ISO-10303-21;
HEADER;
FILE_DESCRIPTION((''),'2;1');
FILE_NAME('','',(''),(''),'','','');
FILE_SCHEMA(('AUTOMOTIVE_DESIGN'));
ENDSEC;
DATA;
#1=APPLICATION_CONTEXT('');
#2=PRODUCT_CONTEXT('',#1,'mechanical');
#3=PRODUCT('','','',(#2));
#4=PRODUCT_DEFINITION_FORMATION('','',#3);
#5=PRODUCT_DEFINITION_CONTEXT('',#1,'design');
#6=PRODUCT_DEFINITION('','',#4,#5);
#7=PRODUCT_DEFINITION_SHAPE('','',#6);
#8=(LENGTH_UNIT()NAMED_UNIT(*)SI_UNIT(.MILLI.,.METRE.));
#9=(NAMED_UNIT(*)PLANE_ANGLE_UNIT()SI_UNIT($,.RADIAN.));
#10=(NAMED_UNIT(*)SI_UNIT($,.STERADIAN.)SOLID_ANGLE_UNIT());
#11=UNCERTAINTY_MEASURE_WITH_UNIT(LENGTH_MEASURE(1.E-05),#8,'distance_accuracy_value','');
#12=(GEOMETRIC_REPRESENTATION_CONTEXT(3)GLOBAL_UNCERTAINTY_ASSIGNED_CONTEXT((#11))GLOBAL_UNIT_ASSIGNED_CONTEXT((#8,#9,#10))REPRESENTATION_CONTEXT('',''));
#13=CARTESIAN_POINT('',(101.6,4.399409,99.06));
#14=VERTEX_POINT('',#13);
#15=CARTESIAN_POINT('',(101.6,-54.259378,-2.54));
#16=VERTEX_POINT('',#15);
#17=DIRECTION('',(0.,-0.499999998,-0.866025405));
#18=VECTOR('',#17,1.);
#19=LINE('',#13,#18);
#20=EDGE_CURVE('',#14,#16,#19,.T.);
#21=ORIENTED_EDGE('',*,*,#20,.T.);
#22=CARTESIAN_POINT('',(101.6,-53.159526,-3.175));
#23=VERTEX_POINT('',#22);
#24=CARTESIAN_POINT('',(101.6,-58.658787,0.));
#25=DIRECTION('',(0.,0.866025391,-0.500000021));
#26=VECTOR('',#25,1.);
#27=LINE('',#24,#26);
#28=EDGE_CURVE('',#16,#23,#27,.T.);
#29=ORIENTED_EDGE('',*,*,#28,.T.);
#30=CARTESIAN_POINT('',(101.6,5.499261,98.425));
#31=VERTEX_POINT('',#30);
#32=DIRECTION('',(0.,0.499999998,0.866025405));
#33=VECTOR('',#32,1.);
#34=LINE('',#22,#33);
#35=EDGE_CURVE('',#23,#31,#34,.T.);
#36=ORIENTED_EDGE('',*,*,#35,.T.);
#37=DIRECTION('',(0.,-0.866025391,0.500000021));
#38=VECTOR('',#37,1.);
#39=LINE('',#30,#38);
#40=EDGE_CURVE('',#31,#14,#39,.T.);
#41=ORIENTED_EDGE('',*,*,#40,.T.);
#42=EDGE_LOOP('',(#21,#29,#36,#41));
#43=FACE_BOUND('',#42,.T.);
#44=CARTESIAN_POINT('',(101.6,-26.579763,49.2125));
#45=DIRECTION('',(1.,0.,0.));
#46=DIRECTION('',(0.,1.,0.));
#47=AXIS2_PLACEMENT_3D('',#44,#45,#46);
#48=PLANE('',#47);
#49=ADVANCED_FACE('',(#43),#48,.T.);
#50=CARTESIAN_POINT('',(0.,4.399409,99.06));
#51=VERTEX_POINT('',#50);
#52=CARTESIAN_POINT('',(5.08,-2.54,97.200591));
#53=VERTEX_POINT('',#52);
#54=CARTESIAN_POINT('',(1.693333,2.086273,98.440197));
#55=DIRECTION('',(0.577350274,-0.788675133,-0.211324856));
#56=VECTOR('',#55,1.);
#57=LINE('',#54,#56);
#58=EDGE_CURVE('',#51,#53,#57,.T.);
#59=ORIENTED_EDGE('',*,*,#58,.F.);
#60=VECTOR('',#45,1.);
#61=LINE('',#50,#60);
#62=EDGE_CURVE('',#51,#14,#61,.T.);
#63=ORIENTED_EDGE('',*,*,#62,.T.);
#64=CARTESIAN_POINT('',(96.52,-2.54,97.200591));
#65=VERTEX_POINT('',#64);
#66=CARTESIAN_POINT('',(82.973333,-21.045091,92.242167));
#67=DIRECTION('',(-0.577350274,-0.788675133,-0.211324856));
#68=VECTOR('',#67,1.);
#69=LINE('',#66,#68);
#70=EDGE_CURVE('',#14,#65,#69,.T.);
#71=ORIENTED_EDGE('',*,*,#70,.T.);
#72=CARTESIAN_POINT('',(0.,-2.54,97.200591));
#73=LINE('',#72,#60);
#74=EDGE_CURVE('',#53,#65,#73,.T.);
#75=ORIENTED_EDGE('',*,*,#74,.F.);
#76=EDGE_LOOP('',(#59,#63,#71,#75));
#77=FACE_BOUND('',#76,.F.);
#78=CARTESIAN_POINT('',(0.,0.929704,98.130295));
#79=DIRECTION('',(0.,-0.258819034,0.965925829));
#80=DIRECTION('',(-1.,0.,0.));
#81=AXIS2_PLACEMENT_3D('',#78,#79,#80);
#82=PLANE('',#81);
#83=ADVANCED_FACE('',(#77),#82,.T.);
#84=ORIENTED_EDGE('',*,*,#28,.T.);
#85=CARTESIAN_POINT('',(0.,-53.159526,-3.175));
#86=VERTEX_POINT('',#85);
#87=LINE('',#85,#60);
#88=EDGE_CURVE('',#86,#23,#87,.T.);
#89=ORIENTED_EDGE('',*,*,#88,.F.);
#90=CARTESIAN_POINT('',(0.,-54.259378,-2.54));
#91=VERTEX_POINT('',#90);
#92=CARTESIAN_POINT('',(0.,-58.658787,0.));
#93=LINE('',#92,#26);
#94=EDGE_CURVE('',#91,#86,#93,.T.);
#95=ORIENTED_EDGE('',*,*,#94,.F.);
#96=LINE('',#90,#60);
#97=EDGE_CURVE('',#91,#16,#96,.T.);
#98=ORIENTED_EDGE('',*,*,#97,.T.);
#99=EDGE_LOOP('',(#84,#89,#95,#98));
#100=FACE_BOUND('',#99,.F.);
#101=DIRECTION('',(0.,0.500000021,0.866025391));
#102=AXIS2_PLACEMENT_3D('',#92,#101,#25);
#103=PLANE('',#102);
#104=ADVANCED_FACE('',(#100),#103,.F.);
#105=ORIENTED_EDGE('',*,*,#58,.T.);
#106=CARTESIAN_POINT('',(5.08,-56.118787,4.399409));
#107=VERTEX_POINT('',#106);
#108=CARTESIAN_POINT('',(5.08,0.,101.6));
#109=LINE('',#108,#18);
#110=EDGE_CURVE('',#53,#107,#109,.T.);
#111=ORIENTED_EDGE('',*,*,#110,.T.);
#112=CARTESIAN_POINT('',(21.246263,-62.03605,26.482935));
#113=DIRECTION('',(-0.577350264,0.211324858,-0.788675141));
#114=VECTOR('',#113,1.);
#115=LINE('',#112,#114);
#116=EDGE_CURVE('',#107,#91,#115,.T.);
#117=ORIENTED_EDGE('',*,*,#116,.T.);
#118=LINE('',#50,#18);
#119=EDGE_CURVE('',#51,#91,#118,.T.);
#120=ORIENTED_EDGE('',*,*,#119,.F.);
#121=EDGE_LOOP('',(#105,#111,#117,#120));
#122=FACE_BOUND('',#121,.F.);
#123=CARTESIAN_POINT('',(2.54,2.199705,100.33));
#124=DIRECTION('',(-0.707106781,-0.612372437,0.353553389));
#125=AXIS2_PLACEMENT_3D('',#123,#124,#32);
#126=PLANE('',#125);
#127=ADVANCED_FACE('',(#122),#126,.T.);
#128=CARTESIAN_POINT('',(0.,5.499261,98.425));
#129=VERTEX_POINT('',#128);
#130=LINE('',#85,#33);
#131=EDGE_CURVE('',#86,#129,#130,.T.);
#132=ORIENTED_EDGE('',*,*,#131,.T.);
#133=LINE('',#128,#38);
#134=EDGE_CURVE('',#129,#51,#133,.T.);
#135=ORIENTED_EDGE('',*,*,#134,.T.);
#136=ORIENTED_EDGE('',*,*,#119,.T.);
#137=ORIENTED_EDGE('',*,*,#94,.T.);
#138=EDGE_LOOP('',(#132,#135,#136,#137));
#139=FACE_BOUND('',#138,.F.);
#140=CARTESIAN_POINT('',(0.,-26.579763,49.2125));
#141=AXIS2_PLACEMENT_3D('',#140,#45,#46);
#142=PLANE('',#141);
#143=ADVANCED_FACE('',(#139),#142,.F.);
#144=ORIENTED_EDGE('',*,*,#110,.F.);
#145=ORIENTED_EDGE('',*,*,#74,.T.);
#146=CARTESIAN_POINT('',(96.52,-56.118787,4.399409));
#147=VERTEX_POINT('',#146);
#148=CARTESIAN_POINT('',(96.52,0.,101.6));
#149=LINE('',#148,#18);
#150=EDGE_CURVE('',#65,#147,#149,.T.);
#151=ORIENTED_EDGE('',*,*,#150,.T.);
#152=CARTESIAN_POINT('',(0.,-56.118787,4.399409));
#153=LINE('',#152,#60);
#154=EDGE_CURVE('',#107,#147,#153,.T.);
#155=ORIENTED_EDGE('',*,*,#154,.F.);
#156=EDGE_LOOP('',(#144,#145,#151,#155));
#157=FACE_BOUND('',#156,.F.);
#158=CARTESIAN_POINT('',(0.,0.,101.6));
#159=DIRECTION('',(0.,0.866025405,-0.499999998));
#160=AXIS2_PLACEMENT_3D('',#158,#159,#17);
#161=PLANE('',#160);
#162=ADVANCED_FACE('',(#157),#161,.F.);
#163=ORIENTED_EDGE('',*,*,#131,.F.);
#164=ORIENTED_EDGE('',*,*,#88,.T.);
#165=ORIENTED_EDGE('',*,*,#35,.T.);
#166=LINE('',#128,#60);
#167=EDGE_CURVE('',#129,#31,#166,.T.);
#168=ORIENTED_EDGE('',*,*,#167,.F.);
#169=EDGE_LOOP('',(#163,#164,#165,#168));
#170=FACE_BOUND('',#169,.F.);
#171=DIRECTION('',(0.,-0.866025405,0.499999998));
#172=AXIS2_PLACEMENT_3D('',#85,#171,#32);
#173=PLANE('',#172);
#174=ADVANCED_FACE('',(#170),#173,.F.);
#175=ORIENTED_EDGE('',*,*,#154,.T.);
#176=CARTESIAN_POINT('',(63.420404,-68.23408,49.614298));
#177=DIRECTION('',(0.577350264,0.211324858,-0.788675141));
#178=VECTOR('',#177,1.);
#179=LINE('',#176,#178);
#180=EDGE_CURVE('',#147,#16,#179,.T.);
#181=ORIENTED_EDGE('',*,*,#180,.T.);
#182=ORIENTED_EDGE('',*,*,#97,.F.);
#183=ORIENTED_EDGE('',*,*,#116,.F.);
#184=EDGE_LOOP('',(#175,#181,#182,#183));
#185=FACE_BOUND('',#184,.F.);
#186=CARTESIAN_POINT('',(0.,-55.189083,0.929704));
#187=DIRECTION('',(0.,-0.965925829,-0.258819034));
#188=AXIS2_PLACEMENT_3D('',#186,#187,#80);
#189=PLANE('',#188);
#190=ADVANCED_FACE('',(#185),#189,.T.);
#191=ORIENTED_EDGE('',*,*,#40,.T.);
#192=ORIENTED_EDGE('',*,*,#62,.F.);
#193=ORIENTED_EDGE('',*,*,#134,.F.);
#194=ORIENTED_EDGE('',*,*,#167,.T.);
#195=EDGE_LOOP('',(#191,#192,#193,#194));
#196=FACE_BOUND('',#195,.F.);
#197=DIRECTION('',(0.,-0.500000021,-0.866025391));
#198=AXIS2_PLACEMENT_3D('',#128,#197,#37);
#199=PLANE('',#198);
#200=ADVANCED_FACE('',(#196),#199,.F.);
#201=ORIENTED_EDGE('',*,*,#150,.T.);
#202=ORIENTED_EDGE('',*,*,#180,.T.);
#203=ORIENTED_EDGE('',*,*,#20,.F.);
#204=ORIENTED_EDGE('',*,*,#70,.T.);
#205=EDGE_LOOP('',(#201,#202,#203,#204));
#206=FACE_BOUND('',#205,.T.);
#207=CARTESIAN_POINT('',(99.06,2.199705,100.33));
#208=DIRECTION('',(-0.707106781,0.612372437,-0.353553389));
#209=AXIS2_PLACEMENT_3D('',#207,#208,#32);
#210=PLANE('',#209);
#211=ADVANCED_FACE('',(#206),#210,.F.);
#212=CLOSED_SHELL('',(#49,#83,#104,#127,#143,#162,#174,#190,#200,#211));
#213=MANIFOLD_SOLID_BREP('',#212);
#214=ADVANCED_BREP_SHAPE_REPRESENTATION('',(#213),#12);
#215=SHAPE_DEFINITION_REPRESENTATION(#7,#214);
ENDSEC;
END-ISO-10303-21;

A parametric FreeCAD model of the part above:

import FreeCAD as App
import Part
import Sketcher

V = App.Vector
Q = App.Units.Quantity


def edges_at(feature, points):
    """Names of the edges that pass closest to the given points."""
    edges = feature.Shape.Edges
    near = lambda p: min(range(len(edges)), key=lambda i: edges[i].distToShape(Part.Vertex(*p))[0])
    return sorted({f"Edge{near(p) + 1}" for p in points})

doc = App.newDocument("Part")
body = doc.addObject("PartDesign::Body", "Body")

# Sketch on YZ plane
sketch1 = body.newObject("Sketcher::SketchObject", "Sketch")
sketch1.AttachmentSupport = (doc.getObject("YZ_Plane"), [""])
sketch1.MapMode = "FlatFace"
sketch1.addGeometry(Part.LineSegment(V(5, 98, 0), V(0, 102, 0)), False)
sketch1.addGeometry(Part.LineSegment(V(0, 102, 0), V(-59, 0, 0)), False)
sketch1.addGeometry(Part.LineSegment(V(-59, 0, 0), V(-53, -3, 0)), False)
sketch1.addGeometry(Part.LineSegment(V(-53, -3, 0), V(5, 98, 0)), False)
sketch1.addConstraint(Sketcher.Constraint("Coincident", 0, 2, 1, 1))
sketch1.addConstraint(Sketcher.Constraint("Coincident", 1, 2, 2, 1))
sketch1.addConstraint(Sketcher.Constraint("Coincident", 2, 2, 3, 1))
sketch1.addConstraint(Sketcher.Constraint("Coincident", 3, 2, 0, 1))
sketch1.addConstraint(Sketcher.Constraint("PointOnObject", 0, 2, -2))
sketch1.addConstraint(Sketcher.Constraint("PointOnObject", 1, 2, -1))
sketch1.addConstraint(Sketcher.Constraint("Perpendicular", 0, 1))
sketch1.addConstraint(Sketcher.Constraint("Perpendicular", 1, 2))
sketch1.addConstraint(Sketcher.Constraint("Perpendicular", 2, 3))
sketch1.addConstraint(Sketcher.Constraint("DistanceY", -1, 1, 0, 2, Q("4 in")))
sketch1.addConstraint(Sketcher.Constraint("Angle", 0, Q("149.999999 deg")))
sketch1.addConstraint(Sketcher.Constraint("Distance", 0, Q("0.25 in")))
pad1 = body.newObject("PartDesign::Pad", "Pad")
pad1.Profile = sketch1
pad1.Length = Q("4 in")
doc.recompute()

chamfer = body.newObject("PartDesign::Chamfer", "Chamfer")
chamfer.Base = (pad1, edges_at(pad1, [
    (50.8, 0, 101.6),
    (50.8, -58.659, 0),
    (0, -29.329, 50.8),
    (101.6, -29.329, 50.8),
]))
chamfer.Size = Q("0.2 in")

doc.recompute()
